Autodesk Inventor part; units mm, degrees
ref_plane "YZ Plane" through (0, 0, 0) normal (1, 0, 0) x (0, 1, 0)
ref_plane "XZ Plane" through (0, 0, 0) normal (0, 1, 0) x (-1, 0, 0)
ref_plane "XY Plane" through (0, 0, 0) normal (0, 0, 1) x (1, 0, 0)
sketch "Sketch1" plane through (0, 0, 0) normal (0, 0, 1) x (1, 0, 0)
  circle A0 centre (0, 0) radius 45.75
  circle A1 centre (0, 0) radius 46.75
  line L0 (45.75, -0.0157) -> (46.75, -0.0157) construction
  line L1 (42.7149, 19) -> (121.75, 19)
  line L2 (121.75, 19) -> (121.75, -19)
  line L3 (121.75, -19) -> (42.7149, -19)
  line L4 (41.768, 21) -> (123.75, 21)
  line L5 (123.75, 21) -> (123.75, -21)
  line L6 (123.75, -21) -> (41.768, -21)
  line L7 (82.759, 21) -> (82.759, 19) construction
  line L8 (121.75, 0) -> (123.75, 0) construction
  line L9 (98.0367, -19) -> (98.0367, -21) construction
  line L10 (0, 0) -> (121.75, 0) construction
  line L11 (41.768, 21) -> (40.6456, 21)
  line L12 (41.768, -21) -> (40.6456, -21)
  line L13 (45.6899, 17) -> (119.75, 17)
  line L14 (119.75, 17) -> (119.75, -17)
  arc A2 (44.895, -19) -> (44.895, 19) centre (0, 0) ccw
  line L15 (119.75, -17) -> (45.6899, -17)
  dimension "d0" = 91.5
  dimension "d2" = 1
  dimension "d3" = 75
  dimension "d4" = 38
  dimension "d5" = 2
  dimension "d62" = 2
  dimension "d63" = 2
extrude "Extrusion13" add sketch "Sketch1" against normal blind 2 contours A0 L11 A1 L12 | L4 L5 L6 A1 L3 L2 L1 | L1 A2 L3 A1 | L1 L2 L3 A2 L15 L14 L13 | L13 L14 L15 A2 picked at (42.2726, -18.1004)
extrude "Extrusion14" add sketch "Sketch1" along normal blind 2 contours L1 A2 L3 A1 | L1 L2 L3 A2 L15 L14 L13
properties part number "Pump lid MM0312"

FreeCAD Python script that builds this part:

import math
import FreeCAD as App
import Part
import Sketcher
from FreeCAD import Vector

doc = App.newDocument("Part")
body = doc.addObject("PartDesign::Body", "Body")

sketch1 = body.newObject("Sketcher::SketchObject", "Sketch")
sketch1.AttachmentSupport = (doc.getObject("XY_Plane"), [""])
sketch1.MapMode = "FlatFace"
sketch1.addGeometry([
    Part.ArcOfCircle(Part.Circle(Vector(0, 0, 0), Vector(0, 0, 1), 46), math.radians(-27), math.radians(27)),
    Part.LineSegment(Vector(41, -21, 0), Vector(124, -21, 0)),
    Part.LineSegment(Vector(124, -21, 0), Vector(124, 21, 0)),
    Part.LineSegment(Vector(124, 21, 0), Vector(41, 21, 0)),
], False)
sketch1.addConstraint([
    Sketcher.Constraint("Coincident", 0, 1, 1, 1),
    Sketcher.Constraint("Coincident", 1, 2, 2, 1),
    Sketcher.Constraint("Coincident", 2, 2, 3, 1),
    Sketcher.Constraint("Coincident", 3, 2, 0, 2),
    Sketcher.Constraint("Horizontal", 1),
    Sketcher.Constraint("Vertical", 2),
    Sketcher.Constraint("Horizontal", 3),
    Sketcher.Constraint("Coincident", 0, 3, -1, 1),
    Sketcher.Constraint("Vertical", 0, 1, 3, 2),
    Sketcher.Constraint("Radius", 0, 45.75),
    Sketcher.Constraint("DistanceY", 2, 1, 2, 2, 42.0),
    Sketcher.Constraint("DistanceX", -1, 1, 1, 2, 123.75),
])
pad1 = body.newObject("PartDesign::Pad", "Pad")
pad1.Profile = sketch1
pad1.Length = 2
pad1.Reversed = True

sketch2 = body.newObject("Sketcher::SketchObject", "Sketch001")
sketch2.AttachmentSupport = (doc.getObject("XY_Plane"), [""])
sketch2.MapMode = "FlatFace"
sketch2.addGeometry([
    Part.ArcOfCircle(Part.Circle(Vector(0, 0, 0), Vector(0, 0, 1), 47), math.radians(-24), math.radians(24)),
    Part.LineSegment(Vector(43, -19, 0), Vector(122, -19, 0)),
    Part.LineSegment(Vector(122, -19, 0), Vector(122, 19, 0)),
    Part.LineSegment(Vector(122, 19, 0), Vector(43, 19, 0)),
    Part.ArcOfCircle(Part.Circle(Vector(0, 0, 0), Vector(0, 0, 1), 49), math.radians(-20), math.radians(20)),
    Part.LineSegment(Vector(46, 17, 0), Vector(120, 17, 0)),
    Part.LineSegment(Vector(120, 17, 0), Vector(120, -17, 0)),
    Part.LineSegment(Vector(120, -17, 0), Vector(46, -17, 0)),
], False)
sketch2.addConstraint([
    Sketcher.Constraint("Coincident", 0, 1, 1, 1),
    Sketcher.Constraint("Coincident", 1, 2, 2, 1),
    Sketcher.Constraint("Coincident", 2, 2, 3, 1),
    Sketcher.Constraint("Coincident", 3, 2, 0, 2),
    Sketcher.Constraint("Coincident", 4, 2, 5, 1),
    Sketcher.Constraint("Coincident", 5, 2, 6, 1),
    Sketcher.Constraint("Coincident", 6, 2, 7, 1),
    Sketcher.Constraint("Coincident", 7, 2, 4, 1),
    Sketcher.Constraint("Horizontal", 1),
    Sketcher.Constraint("Vertical", 2),
    Sketcher.Constraint("Horizontal", 3),
    Sketcher.Constraint("Horizontal", 5),
    Sketcher.Constraint("Vertical", 6),
    Sketcher.Constraint("Horizontal", 7),
    Sketcher.Constraint("Coincident", 0, 3, -1, 1),
    Sketcher.Constraint("Coincident", 4, 3, -1, 1),
    Sketcher.Constraint("Vertical", 0, 1, 3, 2),
    Sketcher.Constraint("Vertical", 4, 2, 7, 2),
    Sketcher.Constraint("DistanceY", 2, 1, 2, 2, 38.0),
    Sketcher.Constraint("DistanceY", 4, 2, 3, 2, 2.0),
    Sketcher.Constraint("DistanceX", 5, 2, 2, 2, 2.0),
    Sketcher.Constraint("Radius", 0, 46.75),
    Sketcher.Constraint("Radius", 4, 48.75),
    Sketcher.Constraint("DistanceX", 5, 1, 5, 2, 74.06),
])
pad2 = body.newObject("PartDesign::Pad", "Pad001")
pad2.Profile = sketch2
pad2.Length = 2

doc.recompute()
